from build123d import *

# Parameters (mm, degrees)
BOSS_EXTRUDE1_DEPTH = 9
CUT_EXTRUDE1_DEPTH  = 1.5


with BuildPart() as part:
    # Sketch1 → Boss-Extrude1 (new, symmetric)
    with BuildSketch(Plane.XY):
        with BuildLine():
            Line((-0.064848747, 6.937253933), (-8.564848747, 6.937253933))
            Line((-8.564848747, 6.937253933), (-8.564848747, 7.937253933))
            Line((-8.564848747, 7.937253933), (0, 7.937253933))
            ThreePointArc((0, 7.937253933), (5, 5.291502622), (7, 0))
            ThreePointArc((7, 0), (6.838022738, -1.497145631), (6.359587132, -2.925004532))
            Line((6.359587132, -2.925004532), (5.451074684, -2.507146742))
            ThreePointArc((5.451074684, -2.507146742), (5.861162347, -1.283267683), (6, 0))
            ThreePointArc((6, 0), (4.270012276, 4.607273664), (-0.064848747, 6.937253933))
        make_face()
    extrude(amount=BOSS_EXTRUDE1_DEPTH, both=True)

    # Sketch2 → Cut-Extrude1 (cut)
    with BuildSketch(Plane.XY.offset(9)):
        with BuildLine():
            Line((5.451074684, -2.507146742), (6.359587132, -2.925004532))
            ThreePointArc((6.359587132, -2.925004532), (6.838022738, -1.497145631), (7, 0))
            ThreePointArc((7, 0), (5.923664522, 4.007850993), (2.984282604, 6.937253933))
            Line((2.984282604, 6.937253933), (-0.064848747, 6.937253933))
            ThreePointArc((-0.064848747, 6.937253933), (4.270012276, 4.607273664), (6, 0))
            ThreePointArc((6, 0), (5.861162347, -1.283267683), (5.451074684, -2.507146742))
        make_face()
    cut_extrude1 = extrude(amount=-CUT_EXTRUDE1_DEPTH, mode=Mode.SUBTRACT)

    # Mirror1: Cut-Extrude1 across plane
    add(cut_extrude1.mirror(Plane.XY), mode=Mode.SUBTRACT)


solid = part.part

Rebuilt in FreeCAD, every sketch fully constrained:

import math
import FreeCAD as App
import Part
import Sketcher
Q = App.Units.Quantity

doc = App.newDocument("Part")
body = doc.addObject("PartDesign::Body", "Body")

# Sketch on XY plane
sketch1 = body.newObject("Sketcher::SketchObject", "Sketch")
sketch1.AttachmentSupport = (doc.getObject("XY_Plane"), [""])
sketch1.MapMode = "FlatFace"
sketch1.addGeometry([
    Part.LineSegment(App.Vector(-8.6, 6.9, 0), App.Vector(-0.1, 6.9, 0)),  # 0
    Part.ArcOfCircle(Part.Circle(App.Vector(-1, 0, 0), App.Vector(0, 0, 1), 7), math.radians(0), math.radians(82)),  # 1
    Part.ArcOfCircle(Part.Circle(App.Vector(0, 0, 0), App.Vector(0, 0, 1), 6), math.radians(-25), math.radians(0)),  # 2
    Part.LineSegment(App.Vector(5.5, -2.5, 0), App.Vector(6.4, -2.9, 0)),  # 3
    Part.ArcOfCircle(Part.Circle(App.Vector(0, 0, 0), App.Vector(0, 0, 1), 7), math.radians(-25), math.radians(0)),  # 4
    Part.ArcOfCircle(Part.Circle(App.Vector(-1, 0, 0), App.Vector(0, 0, 1), 8), math.radians(0), math.radians(83)),  # 5
    Part.LineSegment(App.Vector(0, 7.9, 0), App.Vector(-8.6, 7.9, 0)),  # 6
    Part.LineSegment(App.Vector(-8.6, 7.9, 0), App.Vector(-8.6, 6.9, 0)),  # 7
], False)
sketch1.addConstraint([
    Sketcher.Constraint("Coincident", 0, 2, 1, 2),
    Sketcher.Constraint("Tangent", 1, 1, 2, 2),
    Sketcher.Constraint("Coincident", 2, 1, 3, 1),
    Sketcher.Constraint("Coincident", 3, 2, 4, 1),
    Sketcher.Constraint("Tangent", 4, 2, 5, 1),
    Sketcher.Constraint("Coincident", 5, 2, 6, 1),
    Sketcher.Constraint("Coincident", 6, 2, 7, 1),
    Sketcher.Constraint("Coincident", 7, 2, 0, 1),
    Sketcher.Constraint("Horizontal", 0),
    Sketcher.Constraint("Horizontal", 6),
    Sketcher.Constraint("Vertical", 7),
    Sketcher.Constraint("Coincident", 2, 3, -1, 1),
    Sketcher.Constraint("Coincident", 4, 3, -1, 1),
    Sketcher.Constraint("Coincident", 5, 3, 1, 3),
    Sketcher.Constraint("Equal", 1, 4),
    Sketcher.Constraint("PointOnObject", 1, 3, -1),
    Sketcher.Constraint("PointOnObject", 5, 2, -2),
    Sketcher.Constraint("Radius", 1, Q("7 mm")),
    Sketcher.Constraint("Radius", 2, Q("6 mm")),
    Sketcher.Constraint("DistanceY", 7, 2, 7, 1, Q("1 mm")),
    Sketcher.Constraint("DistanceX", 0, 1, 0, 2, Q("8.5 mm")),
    Sketcher.Constraint("DistanceX", -1, 1, 2, 1, Q("5.451075 mm")),
    Sketcher.Constraint("DistanceX", -1, 1, 3, 2, Q("6.359587 mm")),
])
pad1 = body.newObject("PartDesign::Pad", "Pad")
pad1.Profile = sketch1
pad1.Length = 18
pad1.Midplane = True

# Sketch on XY plane
sketch2 = body.newObject("Sketcher::SketchObject", "Sketch001")
sketch2.AttachmentSupport = (doc.getObject("XY_Plane"), [""])
sketch2.MapMode = "FlatFace"
sketch2.AttachmentOffset = App.Placement(App.Vector(0, 0, 9), App.Rotation())
sketch2.addGeometry([
    Part.LineSegment(App.Vector(5.5, -2.5, 0), App.Vector(6.4, -2.9, 0)),  # 0
    Part.ArcOfCircle(Part.Circle(App.Vector(0, 0, 0), App.Vector(0, 0, 1), 7), math.radians(-25), math.radians(0)),  # 1
    Part.ArcOfCircle(Part.Circle(App.Vector(-1, 0, 0), App.Vector(0, 0, 1), 8), math.radians(0), math.radians(60)),  # 2
    Part.LineSegment(App.Vector(3, 6.9, 0), App.Vector(-0.1, 6.9, 0)),  # 3
    Part.ArcOfCircle(Part.Circle(App.Vector(-1, 0, 0), App.Vector(0, 0, 1), 7), math.radians(0), math.radians(82)),  # 4
    Part.ArcOfCircle(Part.Circle(App.Vector(0, 0, 0), App.Vector(0, 0, 1), 6), math.radians(-25), math.radians(0)),  # 5
], False)
sketch2.addConstraint([
    Sketcher.Constraint("Coincident", 0, 2, 1, 1),
    Sketcher.Constraint("Tangent", 1, 2, 2, 1),
    Sketcher.Constraint("Coincident", 2, 2, 3, 1),
    Sketcher.Constraint("Coincident", 3, 2, 4, 2),
    Sketcher.Constraint("Tangent", 4, 1, 5, 2),
    Sketcher.Constraint("Coincident", 5, 1, 0, 1),
    Sketcher.Constraint("Horizontal", 3),
    Sketcher.Constraint("Coincident", 1, 3, -1, 1),
    Sketcher.Constraint("Coincident", 5, 3, -1, 1),
    Sketcher.Constraint("Coincident", 4, 3, 2, 3),
    Sketcher.Constraint("Equal", 1, 4),
    Sketcher.Constraint("PointOnObject", 2, 3, -1),
    Sketcher.Constraint("Radius", 1, Q("7 mm")),
    Sketcher.Constraint("Radius", 2, Q("8 mm")),
    Sketcher.Constraint("DistanceX", 3, 2, 3, 1, Q("3.049131 mm")),
    Sketcher.Constraint("DistanceX", -1, 1, 0, 2, Q("6.359587 mm")),
    Sketcher.Constraint("DistanceX", -1, 1, 5, 1, Q("5.451075 mm")),
])
pocket1 = body.newObject("PartDesign::Pocket", "Pocket")
pocket1.Profile = sketch2
pocket1.Length = 1.5
doc.recompute()

mirrored = body.newObject("PartDesign::Mirrored", "Mirrored")
mirrored.Originals = [pocket1]
mirrored.MirrorPlane = (doc.getObject("XY_Plane"), [""])
body.Tip = mirrored

doc.recompute()
